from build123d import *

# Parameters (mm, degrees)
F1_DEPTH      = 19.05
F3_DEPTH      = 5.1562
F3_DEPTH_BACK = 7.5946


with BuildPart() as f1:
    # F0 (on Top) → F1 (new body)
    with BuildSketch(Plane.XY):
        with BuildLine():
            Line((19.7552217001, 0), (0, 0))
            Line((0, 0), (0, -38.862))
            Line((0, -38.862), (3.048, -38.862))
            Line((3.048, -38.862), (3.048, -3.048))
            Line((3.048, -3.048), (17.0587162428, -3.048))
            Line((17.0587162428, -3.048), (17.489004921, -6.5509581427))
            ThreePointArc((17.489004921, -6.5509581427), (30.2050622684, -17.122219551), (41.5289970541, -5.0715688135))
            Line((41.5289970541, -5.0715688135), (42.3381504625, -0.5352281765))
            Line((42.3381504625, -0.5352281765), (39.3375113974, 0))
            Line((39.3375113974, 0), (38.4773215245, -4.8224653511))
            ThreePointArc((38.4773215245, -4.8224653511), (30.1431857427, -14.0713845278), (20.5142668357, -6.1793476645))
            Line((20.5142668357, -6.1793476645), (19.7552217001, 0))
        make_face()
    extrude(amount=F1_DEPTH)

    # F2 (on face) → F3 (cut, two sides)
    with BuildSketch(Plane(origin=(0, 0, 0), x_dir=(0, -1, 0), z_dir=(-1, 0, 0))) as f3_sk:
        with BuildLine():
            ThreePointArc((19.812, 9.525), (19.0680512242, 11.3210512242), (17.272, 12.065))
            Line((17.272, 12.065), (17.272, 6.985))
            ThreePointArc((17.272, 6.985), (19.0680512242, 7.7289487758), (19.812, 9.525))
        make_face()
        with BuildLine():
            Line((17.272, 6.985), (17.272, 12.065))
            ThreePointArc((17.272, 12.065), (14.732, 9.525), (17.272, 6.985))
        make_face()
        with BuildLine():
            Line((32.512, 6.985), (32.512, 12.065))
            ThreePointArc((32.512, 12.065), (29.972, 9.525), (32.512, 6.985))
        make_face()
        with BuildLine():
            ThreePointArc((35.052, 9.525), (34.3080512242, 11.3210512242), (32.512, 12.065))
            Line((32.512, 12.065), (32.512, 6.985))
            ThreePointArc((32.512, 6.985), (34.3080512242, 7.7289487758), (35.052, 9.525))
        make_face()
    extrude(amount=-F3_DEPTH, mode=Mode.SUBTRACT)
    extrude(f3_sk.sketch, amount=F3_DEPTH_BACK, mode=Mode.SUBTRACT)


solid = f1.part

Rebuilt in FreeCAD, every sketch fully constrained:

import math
import FreeCAD as App
import Part
import Sketcher
from FreeCAD import Vector
Q = App.Units.Quantity

doc = App.newDocument("Part")
body = doc.addObject("PartDesign::Body", "Body")

# Sketch on XY plane
sketch1 = body.newObject("Sketcher::SketchObject", "Sketch")
sketch1.AttachmentSupport = (doc.getObject("XY_Plane"), [""])
sketch1.MapMode = "FlatFace"
sketch1.addGeometry([
    Part.LineSegment(Vector(19.755222, 0, 0), Vector(0, 0, 0)),  # 0
    Part.LineSegment(Vector(0, 0, 0), Vector(0, -38.862, 0)),  # 1
    Part.LineSegment(Vector(0, -38.862, 0), Vector(3.048, -38.862, 0)),  # 2
    Part.LineSegment(Vector(3.048, -38.862, 0), Vector(3.048, -3.048, 0)),  # 3
    Part.LineSegment(Vector(3.048, -3.048, 0), Vector(17.058716, -3.048, 0)),  # 4
    Part.LineSegment(Vector(17.058716, -3.048, 0), Vector(17.489005, -6.550958, 0)),  # 5
    Part.ArcOfCircle(Part.Circle(Vector(29.464, -5.08, 0), Vector(0, 0, 1), 12.065), math.radians(-172.997108), math.radians(0.040039)),  # 6
    Part.LineSegment(Vector(41.528997, -5.071569, 0), Vector(42.33815, -0.535228, 0)),  # 7
    Part.LineSegment(Vector(42.33815, -0.535228, 0), Vector(39.337511, 0, 0)),  # 8
    Part.LineSegment(Vector(39.337511, 0, 0), Vector(38.477322, -4.822465, 0)),  # 9
    Part.ArcOfCircle(Part.Circle(Vector(29.464, -5.08, 0), Vector(0, 0, 1), 9.017), math.radians(-172.997108), math.radians(1.636648)),  # 10
    Part.LineSegment(Vector(20.514267, -6.179348, 0), Vector(19.755222, 0, 0)),  # 11
], False)
sketch1.addConstraint([
    Sketcher.Constraint("Coincident", 0, 2, 1, 1),
    Sketcher.Constraint("Coincident", 1, 2, 2, 1),
    Sketcher.Constraint("Coincident", 2, 2, 3, 1),
    Sketcher.Constraint("Coincident", 3, 2, 4, 1),
    Sketcher.Constraint("Coincident", 4, 2, 5, 1),
    Sketcher.Constraint("Tangent", 5, 2, 6, 1),
    Sketcher.Constraint("Coincident", 6, 2, 7, 1),
    Sketcher.Constraint("Coincident", 7, 2, 8, 1),
    Sketcher.Constraint("Coincident", 8, 2, 9, 1),
    Sketcher.Constraint("Coincident", 9, 2, 10, 2),
    Sketcher.Constraint("Tangent", 10, 1, 11, 1),
    Sketcher.Constraint("Coincident", 11, 2, 0, 1),
    Sketcher.Constraint("Horizontal", 0),
    Sketcher.Constraint("Vertical", 1),
    Sketcher.Constraint("Horizontal", 2),
    Sketcher.Constraint("Vertical", 3),
    Sketcher.Constraint("Horizontal", 4),
    Sketcher.Constraint("Coincident", 0, 2, -1, 1),
    Sketcher.Constraint("Coincident", 10, 3, 6, 3),
    Sketcher.Constraint("PointOnObject", 8, 2, -1),
    Sketcher.Constraint("Perpendicular", 7, 8),
    Sketcher.Constraint("Perpendicular", 8, 9),
    Sketcher.Constraint("Parallel", 5, 11),
    Sketcher.Constraint("Radius", 6, Q("0.475 in")),
    Sketcher.Constraint("Radius", 10, Q("0.355 in")),
    Sketcher.Constraint("DistanceX", 2, 1, 2, 2, Q("0.12 in")),
    Sketcher.Constraint("DistanceY", 1, 2, 1, 1, Q("1.53 in")),
    Sketcher.Constraint("DistanceY", 3, 1, 3, 2, Q("1.41 in")),
    Sketcher.Constraint("DistanceY", 6, 3, -1, 1, Q("0.2 in")),
    Sketcher.Constraint("Distance", 8, Q("0.12 in")),
    Sketcher.Constraint("DistanceX", -1, 1, 6, 3, Q("1.16 in")),
    Sketcher.Constraint("DistanceX", 0, 2, 0, 1, Q("19.755222 mm")),
    Sketcher.Constraint("Distance", 7, Q("4.60794 mm")),
    Sketcher.Constraint("Distance", 9, Q("4.898581 mm")),
])
pad1 = body.newObject("PartDesign::Pad", "Pad")
pad1.Profile = sketch1
pad1.Length = Q("0.75 in")

# Sketch on YZ plane
sketch2 = body.newObject("Sketcher::SketchObject", "Sketch001")
sketch2.AttachmentSupport = (doc.getObject("YZ_Plane"), [""])
sketch2.MapMode = "FlatFace"
sketch2.addGeometry([
    Part.ArcOfCircle(Part.Circle(Vector(-17.272, 9.525, 0), Vector(0, 0, 1), 2.54), math.radians(90), math.radians(180)),  # 0
    Part.ArcOfCircle(Part.Circle(Vector(-17.272, 9.525, 0), Vector(0, 0, 1), 2.54), math.radians(-90), math.radians(90)),  # 1
    Part.ArcOfCircle(Part.Circle(Vector(-17.272, 9.525, 0), Vector(0, 0, 1), 2.54), math.radians(180), math.radians(270)),  # 2
    Part.ArcOfCircle(Part.Circle(Vector(-32.512, 9.525, 0), Vector(0, 0, 1), 2.54), math.radians(-90), math.radians(90)),  # 3
    Part.ArcOfCircle(Part.Circle(Vector(-32.512, 9.525, 0), Vector(0, 0, 1), 2.54), math.radians(180), math.radians(270)),  # 4
    Part.ArcOfCircle(Part.Circle(Vector(-32.512, 9.525, 0), Vector(0, 0, 1), 2.54), math.radians(90), math.radians(180)),  # 5
], False)
sketch2.addConstraint([
    Sketcher.Constraint("Tangent", 0, 1, 1, 2),
    Sketcher.Constraint("Tangent", 1, 1, 2, 2),
    Sketcher.Constraint("Tangent", 2, 1, 0, 2),
    Sketcher.Constraint("Tangent", 3, 1, 4, 2),
    Sketcher.Constraint("Tangent", 4, 1, 5, 2),
    Sketcher.Constraint("Tangent", 5, 1, 3, 2),
    Sketcher.Constraint("Equal", 2, 3),
    Sketcher.Constraint("Horizontal", 2, 3, 3, 3),
    Sketcher.Constraint("Horizontal", 5, 3, 2, 1),
    Sketcher.Constraint("Horizontal", 2, 1, 4, 1),
    Sketcher.Constraint("Vertical", 2, 3, 0, 1),
    Sketcher.Constraint("Vertical", 0, 1, 1, 1),
    Sketcher.Constraint("Vertical", 5, 3, 3, 1),
    Sketcher.Constraint("Vertical", 3, 1, 5, 1),
    Sketcher.Constraint("Radius", 0, Q("0.1 in")),
    Sketcher.Constraint("DistanceX", 3, 3, 0, 3, Q("0.6 in")),
    Sketcher.Constraint("DistanceX", 0, 3, -1, 1, Q("0.68 in")),
    Sketcher.Constraint("DistanceY", -1, 1, 0, 3, Q("0.375 in")),
])
pocket1 = body.newObject("PartDesign::Pocket", "Pocket")
pocket1.Profile = sketch2
pocket1.Type = "TwoLengths"
pocket1.Length = Q("0.203 in")
pocket1.Length2 = Q("0.299 in")
pocket1.Reversed = True

doc.recompute()
